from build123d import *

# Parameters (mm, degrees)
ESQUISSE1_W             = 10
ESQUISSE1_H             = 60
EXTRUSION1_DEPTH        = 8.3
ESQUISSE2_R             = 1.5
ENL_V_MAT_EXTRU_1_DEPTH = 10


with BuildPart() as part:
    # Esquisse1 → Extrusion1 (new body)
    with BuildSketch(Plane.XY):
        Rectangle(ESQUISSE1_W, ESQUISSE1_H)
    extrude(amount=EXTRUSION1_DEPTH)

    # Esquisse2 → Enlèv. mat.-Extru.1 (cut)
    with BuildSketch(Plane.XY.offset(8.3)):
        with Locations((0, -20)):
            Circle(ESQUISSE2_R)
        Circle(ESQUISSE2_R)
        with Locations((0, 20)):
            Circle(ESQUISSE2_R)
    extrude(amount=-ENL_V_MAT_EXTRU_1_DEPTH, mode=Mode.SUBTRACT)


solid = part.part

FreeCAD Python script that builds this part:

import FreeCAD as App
import Part
import Sketcher

V = App.Vector


def add_polygon(sketch, points):
    """Adds a closed chain of lines whose ends are joined by coincident constraints."""
    first, n = sketch.GeometryCount, len(points)
    for a, b in zip(points, points[1:] + points[:1]):
        sketch.addGeometry(Part.LineSegment(App.Vector(*a, 0), App.Vector(*b, 0)), False)
    for i in range(n):
        sketch.addConstraint(Sketcher.Constraint("Coincident", first + i, 2, first + (i + 1) % n, 1))

doc = App.newDocument("Part")
body = doc.addObject("PartDesign::Body", "Body")

# Sketch on XY plane
sketch1 = body.newObject("Sketcher::SketchObject", "Sketch")
sketch1.AttachmentSupport = (doc.getObject("XY_Plane"), [""])
sketch1.MapMode = "FlatFace"
add_polygon(sketch1, [(-5, 30), (-5, -30), (5, -30), (5, 30)])  # lines 0-3
sketch1.addConstraint([
    Sketcher.Constraint("Vertical", 0),
    Sketcher.Constraint("Horizontal", 1),
    Sketcher.Constraint("Vertical", 2),
    Sketcher.Constraint("Horizontal", 3),
    Sketcher.Constraint("Symmetric", 0, 2, 2, 2, -1, 1),
    Sketcher.Constraint("DistanceX", 1, 1, 1, 2, 10.0),
    Sketcher.Constraint("DistanceY", 0, 2, 0, 1, 60.0),
])
pad1 = body.newObject("PartDesign::Pad", "Pad")
pad1.Profile = sketch1
pad1.Length = 8.3

# Sketch on XY plane
sketch2 = body.newObject("Sketcher::SketchObject", "Sketch001")
sketch2.AttachmentSupport = (doc.getObject("XY_Plane"), [""])
sketch2.MapMode = "FlatFace"
sketch2.AttachmentOffset = App.Placement(V(0, 0, 8.3), App.Rotation())
sketch2.addGeometry([
    Part.Circle(V(0, -20, 0), V(0, 0, 1), 1.5),
    Part.Circle(V(0, 0, 0), V(0, 0, 1), 1.5),
    Part.Circle(V(0, 20, 0), V(0, 0, 1), 1.5),
], False)
sketch2.addConstraint([
    Sketcher.Constraint("Coincident", 1, 3, -1, 1),
    Sketcher.Constraint("Equal", 0, 1),
    Sketcher.Constraint("Equal", 1, 2),
    Sketcher.Constraint("Symmetric", 0, 3, 2, 3, -1, 1),
    Sketcher.Constraint("PointOnObject", 0, 3, -2),
    Sketcher.Constraint("Diameter", 0, 3.0),
    Sketcher.Constraint("DistanceY", 0, 3, -1, 1, 20.0),
])
pocket1 = body.newObject("PartDesign::Pocket", "Pocket")
pocket1.Profile = sketch2
pocket1.Length = 10

doc.recompute()
